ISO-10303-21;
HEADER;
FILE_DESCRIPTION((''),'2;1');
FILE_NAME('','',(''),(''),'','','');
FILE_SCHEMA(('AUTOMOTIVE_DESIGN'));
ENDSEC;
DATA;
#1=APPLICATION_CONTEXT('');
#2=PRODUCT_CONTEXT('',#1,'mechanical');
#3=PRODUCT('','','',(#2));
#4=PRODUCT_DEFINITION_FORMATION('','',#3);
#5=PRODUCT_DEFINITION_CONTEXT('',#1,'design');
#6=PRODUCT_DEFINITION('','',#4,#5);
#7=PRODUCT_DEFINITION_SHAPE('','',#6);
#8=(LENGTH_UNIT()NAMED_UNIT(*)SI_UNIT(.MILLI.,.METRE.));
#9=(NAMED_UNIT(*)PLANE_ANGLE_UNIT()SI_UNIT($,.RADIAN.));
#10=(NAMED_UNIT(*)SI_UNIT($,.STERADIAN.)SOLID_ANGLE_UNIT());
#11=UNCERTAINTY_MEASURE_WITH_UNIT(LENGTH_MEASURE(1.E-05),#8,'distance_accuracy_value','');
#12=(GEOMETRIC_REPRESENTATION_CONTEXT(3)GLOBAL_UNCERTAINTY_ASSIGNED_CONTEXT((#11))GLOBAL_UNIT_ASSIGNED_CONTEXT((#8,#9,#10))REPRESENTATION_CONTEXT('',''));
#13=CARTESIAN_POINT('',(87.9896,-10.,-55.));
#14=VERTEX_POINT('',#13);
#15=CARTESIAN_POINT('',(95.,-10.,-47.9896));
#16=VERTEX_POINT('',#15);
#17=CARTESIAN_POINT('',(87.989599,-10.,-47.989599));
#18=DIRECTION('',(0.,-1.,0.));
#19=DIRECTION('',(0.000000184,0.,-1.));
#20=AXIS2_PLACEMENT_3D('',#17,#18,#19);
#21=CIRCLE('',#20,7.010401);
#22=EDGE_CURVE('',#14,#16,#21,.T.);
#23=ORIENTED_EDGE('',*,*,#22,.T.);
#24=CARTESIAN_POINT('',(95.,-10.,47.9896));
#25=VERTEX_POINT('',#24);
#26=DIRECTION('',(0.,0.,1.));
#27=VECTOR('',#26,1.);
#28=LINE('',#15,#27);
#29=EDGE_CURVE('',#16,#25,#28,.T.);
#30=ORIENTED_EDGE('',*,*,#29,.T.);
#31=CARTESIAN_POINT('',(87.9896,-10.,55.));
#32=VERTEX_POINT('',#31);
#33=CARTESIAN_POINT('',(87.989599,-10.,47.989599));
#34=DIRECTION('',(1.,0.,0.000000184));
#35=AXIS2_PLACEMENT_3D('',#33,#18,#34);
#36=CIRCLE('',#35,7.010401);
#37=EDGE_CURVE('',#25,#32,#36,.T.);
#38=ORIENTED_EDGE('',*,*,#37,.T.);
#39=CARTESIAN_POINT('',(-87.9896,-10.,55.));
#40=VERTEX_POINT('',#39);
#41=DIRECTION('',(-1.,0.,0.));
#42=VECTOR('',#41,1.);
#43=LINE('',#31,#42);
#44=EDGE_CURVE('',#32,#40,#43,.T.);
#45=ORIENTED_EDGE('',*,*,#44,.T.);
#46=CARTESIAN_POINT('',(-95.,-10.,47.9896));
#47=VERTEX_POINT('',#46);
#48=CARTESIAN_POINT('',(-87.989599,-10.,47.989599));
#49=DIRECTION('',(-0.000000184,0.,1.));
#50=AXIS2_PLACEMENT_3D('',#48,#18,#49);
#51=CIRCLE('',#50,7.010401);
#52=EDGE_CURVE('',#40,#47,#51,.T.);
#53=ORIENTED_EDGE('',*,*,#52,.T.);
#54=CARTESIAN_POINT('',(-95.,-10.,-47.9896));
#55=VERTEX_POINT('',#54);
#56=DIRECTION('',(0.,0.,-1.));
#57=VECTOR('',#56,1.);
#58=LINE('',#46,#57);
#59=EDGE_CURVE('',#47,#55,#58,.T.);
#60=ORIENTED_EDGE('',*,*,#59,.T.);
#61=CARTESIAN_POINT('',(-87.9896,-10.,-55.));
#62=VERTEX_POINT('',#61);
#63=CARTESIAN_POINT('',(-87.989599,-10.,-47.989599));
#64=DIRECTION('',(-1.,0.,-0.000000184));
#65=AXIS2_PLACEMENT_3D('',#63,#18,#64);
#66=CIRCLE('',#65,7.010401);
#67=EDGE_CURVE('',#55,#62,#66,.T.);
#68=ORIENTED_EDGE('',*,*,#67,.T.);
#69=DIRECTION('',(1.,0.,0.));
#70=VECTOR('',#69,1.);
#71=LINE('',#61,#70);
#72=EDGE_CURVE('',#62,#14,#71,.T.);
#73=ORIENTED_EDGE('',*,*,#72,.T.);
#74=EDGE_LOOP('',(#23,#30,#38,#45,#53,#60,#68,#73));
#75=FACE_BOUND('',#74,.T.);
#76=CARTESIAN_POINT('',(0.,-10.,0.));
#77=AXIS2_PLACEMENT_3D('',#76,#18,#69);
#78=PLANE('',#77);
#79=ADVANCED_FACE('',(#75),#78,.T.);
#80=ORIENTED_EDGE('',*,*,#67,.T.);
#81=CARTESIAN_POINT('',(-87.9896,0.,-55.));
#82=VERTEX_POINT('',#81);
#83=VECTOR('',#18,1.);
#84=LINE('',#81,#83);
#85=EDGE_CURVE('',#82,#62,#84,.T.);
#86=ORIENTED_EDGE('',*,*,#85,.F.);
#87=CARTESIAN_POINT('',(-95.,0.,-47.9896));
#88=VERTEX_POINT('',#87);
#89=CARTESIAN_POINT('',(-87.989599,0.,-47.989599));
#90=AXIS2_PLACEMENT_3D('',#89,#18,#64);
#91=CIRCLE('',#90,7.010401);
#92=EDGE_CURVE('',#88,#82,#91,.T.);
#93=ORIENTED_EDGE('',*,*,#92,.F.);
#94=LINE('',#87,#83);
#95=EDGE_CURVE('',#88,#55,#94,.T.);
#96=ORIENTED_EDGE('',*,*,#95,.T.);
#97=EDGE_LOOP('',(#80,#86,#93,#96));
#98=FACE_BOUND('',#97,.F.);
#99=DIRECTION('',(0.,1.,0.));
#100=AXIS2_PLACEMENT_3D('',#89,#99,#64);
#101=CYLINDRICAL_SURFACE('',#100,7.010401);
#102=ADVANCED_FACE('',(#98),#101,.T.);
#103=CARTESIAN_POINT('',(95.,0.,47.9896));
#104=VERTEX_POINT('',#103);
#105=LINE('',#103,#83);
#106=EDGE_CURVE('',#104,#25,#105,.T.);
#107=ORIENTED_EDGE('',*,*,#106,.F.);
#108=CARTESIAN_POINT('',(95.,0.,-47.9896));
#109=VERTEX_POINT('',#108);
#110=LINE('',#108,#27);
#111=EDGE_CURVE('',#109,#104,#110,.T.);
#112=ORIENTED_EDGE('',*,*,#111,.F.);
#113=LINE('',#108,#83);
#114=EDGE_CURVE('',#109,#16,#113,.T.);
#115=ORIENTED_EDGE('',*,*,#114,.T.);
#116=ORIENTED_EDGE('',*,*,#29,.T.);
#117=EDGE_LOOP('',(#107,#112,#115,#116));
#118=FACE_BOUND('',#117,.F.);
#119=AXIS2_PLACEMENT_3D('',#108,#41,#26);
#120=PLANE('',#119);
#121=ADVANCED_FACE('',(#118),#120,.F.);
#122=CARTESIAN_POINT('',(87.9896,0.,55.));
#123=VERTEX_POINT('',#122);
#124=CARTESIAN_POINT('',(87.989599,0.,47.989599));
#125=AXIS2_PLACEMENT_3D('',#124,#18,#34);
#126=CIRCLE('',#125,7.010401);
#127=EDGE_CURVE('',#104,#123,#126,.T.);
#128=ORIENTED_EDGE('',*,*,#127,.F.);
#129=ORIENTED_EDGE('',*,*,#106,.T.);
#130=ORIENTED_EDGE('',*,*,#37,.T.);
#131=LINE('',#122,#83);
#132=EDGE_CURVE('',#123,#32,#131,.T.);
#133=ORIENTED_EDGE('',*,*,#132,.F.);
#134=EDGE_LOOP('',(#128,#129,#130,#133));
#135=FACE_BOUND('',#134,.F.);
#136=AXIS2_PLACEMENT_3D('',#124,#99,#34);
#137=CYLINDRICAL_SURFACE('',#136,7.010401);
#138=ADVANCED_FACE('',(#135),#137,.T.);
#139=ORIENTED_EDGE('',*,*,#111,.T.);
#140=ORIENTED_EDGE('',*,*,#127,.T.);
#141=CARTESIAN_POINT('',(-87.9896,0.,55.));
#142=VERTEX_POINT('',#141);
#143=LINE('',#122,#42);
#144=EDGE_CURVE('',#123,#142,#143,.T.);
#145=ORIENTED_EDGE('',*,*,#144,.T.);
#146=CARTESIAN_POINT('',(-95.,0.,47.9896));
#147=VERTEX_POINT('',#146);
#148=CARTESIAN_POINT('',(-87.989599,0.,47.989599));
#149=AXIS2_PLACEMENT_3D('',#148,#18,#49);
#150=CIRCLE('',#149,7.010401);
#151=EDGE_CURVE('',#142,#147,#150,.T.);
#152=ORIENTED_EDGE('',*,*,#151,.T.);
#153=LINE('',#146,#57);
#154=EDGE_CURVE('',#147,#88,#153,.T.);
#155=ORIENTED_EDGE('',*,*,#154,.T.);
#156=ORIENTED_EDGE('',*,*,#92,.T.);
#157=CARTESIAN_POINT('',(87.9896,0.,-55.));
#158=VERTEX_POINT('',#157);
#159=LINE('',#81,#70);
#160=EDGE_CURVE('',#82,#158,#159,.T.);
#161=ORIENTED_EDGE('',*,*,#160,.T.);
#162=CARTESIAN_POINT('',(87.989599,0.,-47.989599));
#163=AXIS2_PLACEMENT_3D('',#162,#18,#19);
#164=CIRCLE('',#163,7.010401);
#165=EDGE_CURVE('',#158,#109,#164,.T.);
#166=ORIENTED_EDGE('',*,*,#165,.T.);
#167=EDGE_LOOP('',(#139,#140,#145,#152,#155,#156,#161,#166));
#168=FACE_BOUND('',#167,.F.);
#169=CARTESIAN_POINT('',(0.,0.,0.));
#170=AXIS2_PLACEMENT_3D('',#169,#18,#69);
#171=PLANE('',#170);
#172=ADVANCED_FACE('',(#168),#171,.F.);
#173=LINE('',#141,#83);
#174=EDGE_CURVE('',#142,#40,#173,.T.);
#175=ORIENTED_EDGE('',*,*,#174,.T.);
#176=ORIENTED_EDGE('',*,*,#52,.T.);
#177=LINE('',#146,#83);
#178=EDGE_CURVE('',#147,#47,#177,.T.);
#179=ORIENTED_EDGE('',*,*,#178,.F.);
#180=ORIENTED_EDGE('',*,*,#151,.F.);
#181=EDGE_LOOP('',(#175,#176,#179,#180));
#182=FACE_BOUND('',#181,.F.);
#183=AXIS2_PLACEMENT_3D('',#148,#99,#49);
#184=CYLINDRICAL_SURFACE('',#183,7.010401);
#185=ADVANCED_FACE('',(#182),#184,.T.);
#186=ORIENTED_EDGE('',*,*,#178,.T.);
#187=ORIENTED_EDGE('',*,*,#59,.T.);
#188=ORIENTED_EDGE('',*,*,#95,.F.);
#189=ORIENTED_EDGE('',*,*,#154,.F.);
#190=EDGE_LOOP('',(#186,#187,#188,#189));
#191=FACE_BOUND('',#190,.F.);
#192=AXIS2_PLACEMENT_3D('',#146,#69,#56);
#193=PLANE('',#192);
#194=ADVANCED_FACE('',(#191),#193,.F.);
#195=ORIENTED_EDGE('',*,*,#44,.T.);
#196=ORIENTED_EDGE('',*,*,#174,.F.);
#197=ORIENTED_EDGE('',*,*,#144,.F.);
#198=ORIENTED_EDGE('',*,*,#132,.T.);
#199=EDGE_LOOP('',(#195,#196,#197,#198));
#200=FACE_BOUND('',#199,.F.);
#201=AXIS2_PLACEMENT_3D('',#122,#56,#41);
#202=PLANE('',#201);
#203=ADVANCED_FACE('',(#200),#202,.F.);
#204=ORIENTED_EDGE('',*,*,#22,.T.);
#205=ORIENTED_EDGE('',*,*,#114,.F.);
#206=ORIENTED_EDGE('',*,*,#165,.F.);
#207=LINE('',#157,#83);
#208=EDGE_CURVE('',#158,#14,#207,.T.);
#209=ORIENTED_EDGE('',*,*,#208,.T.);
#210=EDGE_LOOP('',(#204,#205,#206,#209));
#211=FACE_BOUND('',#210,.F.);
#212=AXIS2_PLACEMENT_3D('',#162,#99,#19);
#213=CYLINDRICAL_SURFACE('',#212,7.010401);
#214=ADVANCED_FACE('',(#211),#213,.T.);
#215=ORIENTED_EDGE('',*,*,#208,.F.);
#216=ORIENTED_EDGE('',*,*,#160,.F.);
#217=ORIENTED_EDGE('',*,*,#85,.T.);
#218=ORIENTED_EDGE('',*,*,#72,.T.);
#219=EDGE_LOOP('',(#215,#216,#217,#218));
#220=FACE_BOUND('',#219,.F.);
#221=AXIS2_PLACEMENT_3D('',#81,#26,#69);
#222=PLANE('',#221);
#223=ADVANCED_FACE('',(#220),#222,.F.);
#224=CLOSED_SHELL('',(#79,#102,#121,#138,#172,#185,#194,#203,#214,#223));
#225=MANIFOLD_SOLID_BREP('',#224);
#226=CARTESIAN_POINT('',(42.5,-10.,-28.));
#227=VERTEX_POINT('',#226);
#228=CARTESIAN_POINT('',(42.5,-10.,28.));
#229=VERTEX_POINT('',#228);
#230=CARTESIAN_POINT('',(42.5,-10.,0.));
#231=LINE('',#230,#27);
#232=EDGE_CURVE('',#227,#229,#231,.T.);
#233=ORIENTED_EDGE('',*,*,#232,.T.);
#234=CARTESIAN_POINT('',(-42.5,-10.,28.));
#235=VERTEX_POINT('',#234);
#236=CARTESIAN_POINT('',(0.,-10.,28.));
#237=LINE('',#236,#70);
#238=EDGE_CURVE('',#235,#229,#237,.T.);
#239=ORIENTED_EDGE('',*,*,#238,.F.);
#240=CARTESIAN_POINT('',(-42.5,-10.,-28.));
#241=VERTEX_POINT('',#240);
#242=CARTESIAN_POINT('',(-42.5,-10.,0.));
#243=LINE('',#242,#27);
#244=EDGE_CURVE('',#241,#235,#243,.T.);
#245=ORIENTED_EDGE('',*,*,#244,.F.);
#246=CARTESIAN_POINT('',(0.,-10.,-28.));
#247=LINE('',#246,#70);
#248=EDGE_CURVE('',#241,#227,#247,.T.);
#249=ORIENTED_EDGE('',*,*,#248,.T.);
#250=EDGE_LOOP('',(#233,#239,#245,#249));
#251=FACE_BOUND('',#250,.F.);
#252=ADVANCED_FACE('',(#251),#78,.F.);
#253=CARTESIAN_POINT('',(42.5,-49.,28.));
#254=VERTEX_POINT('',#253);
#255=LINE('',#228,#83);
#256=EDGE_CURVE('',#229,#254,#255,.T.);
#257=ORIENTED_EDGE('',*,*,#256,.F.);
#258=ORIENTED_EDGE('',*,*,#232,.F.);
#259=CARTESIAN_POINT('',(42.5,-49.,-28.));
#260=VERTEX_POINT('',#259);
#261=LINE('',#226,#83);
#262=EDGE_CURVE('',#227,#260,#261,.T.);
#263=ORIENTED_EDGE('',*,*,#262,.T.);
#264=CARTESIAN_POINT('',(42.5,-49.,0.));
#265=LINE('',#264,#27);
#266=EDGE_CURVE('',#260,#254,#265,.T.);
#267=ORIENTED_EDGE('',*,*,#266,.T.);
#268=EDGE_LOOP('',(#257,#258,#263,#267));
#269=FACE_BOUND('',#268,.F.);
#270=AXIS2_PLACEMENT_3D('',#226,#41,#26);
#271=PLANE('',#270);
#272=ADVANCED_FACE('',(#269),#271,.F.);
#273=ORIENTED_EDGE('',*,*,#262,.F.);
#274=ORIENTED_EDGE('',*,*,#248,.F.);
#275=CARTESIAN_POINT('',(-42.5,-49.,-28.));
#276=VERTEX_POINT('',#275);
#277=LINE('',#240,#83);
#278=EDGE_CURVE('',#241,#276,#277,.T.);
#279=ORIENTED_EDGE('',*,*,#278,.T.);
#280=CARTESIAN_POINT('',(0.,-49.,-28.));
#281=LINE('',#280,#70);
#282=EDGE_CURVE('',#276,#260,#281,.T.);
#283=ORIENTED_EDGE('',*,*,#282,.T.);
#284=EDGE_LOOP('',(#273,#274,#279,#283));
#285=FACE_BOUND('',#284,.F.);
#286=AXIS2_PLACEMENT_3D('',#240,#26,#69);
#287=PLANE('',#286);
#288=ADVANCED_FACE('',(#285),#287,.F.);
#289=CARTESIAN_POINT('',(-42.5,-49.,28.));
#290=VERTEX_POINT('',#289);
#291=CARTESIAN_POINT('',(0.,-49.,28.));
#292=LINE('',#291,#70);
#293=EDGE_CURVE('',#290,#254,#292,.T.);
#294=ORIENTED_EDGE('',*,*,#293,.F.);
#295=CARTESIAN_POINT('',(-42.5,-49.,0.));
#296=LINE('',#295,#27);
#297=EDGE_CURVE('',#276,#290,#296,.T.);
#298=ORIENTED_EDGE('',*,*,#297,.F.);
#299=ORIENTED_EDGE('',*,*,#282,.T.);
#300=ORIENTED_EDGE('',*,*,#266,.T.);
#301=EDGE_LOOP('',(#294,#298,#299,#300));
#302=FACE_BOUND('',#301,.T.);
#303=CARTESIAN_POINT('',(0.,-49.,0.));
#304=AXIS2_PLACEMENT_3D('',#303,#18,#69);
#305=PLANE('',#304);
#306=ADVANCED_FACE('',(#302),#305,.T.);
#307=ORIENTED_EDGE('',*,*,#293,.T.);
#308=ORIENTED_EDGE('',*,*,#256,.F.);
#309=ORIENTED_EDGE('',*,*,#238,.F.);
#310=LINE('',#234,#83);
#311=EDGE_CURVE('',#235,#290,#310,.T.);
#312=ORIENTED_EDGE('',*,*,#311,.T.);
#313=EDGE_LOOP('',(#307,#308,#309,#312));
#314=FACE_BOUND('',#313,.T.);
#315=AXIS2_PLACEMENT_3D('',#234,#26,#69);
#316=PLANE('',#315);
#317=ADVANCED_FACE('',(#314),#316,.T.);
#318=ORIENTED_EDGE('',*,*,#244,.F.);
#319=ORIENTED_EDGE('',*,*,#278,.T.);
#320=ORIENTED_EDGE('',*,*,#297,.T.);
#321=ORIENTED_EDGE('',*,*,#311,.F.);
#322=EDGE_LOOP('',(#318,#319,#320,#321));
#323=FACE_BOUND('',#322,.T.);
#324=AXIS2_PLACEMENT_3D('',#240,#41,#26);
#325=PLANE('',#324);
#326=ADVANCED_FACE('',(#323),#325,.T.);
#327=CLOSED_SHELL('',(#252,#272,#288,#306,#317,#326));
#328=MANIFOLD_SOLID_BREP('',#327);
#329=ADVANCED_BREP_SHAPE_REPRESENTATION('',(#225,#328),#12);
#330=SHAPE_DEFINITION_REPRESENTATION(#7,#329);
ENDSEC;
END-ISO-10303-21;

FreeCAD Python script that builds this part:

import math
import FreeCAD as App
import Part
import Sketcher

V = App.Vector
Q = App.Units.Quantity

doc = App.newDocument("Part")
body = doc.addObject("PartDesign::Body", "Body")

sketch1 = body.newObject("Sketcher::SketchObject", "Sketch")
sketch1.AttachmentSupport = (doc.getObject("XZ_Plane"), [""])
sketch1.MapMode = "FlatFace"
sketch1.addGeometry([
    Part.ArcOfCircle(Part.Circle(V(88, 48, 0), V(0, 0, 1), 7), math.radians(0), math.radians(90)),
    Part.LineSegment(V(88, 55, 0), V(-88, 55, 0)),
    Part.ArcOfCircle(Part.Circle(V(-88, 48, 0), V(0, 0, 1), 7), math.radians(90), math.radians(180)),
    Part.LineSegment(V(-95, 48, 0), V(-95, -48, 0)),
    Part.ArcOfCircle(Part.Circle(V(-88, -48, 0), V(0, 0, 1), 7), math.radians(-180), math.radians(-90)),
    Part.LineSegment(V(-88, -55, 0), V(88, -55, 0)),
    Part.ArcOfCircle(Part.Circle(V(88, -48, 0), V(0, 0, 1), 7), math.radians(-90), math.radians(0)),
    Part.LineSegment(V(95, -48, 0), V(95, 48, 0)),
], False)
sketch1.addConstraint([
    Sketcher.Constraint("Tangent", 0, 2, 1, 1),
    Sketcher.Constraint("Tangent", 1, 2, 2, 1),
    Sketcher.Constraint("Tangent", 2, 2, 3, 1),
    Sketcher.Constraint("Tangent", 3, 2, 4, 1),
    Sketcher.Constraint("Tangent", 4, 2, 5, 1),
    Sketcher.Constraint("Tangent", 5, 2, 6, 1),
    Sketcher.Constraint("Tangent", 6, 2, 7, 1),
    Sketcher.Constraint("Tangent", 7, 2, 0, 1),
    Sketcher.Constraint("Horizontal", 1),
    Sketcher.Constraint("Vertical", 3),
    Sketcher.Constraint("Horizontal", 5),
    Sketcher.Constraint("Vertical", 7),
    Sketcher.Constraint("Equal", 0, 2),
    Sketcher.Constraint("Equal", 2, 4),
    Sketcher.Constraint("Equal", 4, 6),
    Sketcher.Constraint("Symmetric", 0, 3, 4, 3, -1, 1),
    Sketcher.Constraint("DistanceY", -1, 1, 0, 2, Q("55 mm")),
    Sketcher.Constraint("DistanceX", 2, 2, -1, 1, Q("95 mm")),
    Sketcher.Constraint("Radius", 0, Q("7.010401 mm")),
])
pad1 = body.newObject("PartDesign::Pad", "Pad")
pad1.Profile = sketch1
pad1.Length = 10
body2 = doc.addObject("PartDesign::Body", "Body001")

sketch2 = body2.newObject("Sketcher::SketchObject", "Sketch001")
sketch2.AttachmentSupport = (doc.getObject("XZ_Plane001"), [""])
sketch2.MapMode = "FlatFace"
sketch2.AttachmentOffset = App.Placement(V(0, 0, 10), App.Rotation())
sketch2.addGeometry([
    Part.LineSegment(V(-42, 28, 0), V(-42, -28, 0)),
    Part.LineSegment(V(-42, -28, 0), V(42, -28, 0)),
    Part.LineSegment(V(42, -28, 0), V(42, 28, 0)),
    Part.LineSegment(V(42, 28, 0), V(-42, 28, 0)),
], False)
sketch2.addConstraint([
    Sketcher.Constraint("Coincident", 0, 2, 1, 1),
    Sketcher.Constraint("Coincident", 1, 2, 2, 1),
    Sketcher.Constraint("Coincident", 2, 2, 3, 1),
    Sketcher.Constraint("Coincident", 3, 2, 0, 1),
    Sketcher.Constraint("Vertical", 0),
    Sketcher.Constraint("Horizontal", 1),
    Sketcher.Constraint("Vertical", 2),
    Sketcher.Constraint("Horizontal", 3),
    Sketcher.Constraint("Symmetric", 0, 2, 2, 2, -1, 1),
    Sketcher.Constraint("DistanceX", 1, 1, 1, 2, Q("85 mm")),
    Sketcher.Constraint("DistanceY", 0, 2, 0, 1, Q("56 mm")),
])
pad2 = body2.newObject("PartDesign::Pad", "Pad001")
pad2.Profile = sketch2
pad2.Length = 39

doc.recompute()
